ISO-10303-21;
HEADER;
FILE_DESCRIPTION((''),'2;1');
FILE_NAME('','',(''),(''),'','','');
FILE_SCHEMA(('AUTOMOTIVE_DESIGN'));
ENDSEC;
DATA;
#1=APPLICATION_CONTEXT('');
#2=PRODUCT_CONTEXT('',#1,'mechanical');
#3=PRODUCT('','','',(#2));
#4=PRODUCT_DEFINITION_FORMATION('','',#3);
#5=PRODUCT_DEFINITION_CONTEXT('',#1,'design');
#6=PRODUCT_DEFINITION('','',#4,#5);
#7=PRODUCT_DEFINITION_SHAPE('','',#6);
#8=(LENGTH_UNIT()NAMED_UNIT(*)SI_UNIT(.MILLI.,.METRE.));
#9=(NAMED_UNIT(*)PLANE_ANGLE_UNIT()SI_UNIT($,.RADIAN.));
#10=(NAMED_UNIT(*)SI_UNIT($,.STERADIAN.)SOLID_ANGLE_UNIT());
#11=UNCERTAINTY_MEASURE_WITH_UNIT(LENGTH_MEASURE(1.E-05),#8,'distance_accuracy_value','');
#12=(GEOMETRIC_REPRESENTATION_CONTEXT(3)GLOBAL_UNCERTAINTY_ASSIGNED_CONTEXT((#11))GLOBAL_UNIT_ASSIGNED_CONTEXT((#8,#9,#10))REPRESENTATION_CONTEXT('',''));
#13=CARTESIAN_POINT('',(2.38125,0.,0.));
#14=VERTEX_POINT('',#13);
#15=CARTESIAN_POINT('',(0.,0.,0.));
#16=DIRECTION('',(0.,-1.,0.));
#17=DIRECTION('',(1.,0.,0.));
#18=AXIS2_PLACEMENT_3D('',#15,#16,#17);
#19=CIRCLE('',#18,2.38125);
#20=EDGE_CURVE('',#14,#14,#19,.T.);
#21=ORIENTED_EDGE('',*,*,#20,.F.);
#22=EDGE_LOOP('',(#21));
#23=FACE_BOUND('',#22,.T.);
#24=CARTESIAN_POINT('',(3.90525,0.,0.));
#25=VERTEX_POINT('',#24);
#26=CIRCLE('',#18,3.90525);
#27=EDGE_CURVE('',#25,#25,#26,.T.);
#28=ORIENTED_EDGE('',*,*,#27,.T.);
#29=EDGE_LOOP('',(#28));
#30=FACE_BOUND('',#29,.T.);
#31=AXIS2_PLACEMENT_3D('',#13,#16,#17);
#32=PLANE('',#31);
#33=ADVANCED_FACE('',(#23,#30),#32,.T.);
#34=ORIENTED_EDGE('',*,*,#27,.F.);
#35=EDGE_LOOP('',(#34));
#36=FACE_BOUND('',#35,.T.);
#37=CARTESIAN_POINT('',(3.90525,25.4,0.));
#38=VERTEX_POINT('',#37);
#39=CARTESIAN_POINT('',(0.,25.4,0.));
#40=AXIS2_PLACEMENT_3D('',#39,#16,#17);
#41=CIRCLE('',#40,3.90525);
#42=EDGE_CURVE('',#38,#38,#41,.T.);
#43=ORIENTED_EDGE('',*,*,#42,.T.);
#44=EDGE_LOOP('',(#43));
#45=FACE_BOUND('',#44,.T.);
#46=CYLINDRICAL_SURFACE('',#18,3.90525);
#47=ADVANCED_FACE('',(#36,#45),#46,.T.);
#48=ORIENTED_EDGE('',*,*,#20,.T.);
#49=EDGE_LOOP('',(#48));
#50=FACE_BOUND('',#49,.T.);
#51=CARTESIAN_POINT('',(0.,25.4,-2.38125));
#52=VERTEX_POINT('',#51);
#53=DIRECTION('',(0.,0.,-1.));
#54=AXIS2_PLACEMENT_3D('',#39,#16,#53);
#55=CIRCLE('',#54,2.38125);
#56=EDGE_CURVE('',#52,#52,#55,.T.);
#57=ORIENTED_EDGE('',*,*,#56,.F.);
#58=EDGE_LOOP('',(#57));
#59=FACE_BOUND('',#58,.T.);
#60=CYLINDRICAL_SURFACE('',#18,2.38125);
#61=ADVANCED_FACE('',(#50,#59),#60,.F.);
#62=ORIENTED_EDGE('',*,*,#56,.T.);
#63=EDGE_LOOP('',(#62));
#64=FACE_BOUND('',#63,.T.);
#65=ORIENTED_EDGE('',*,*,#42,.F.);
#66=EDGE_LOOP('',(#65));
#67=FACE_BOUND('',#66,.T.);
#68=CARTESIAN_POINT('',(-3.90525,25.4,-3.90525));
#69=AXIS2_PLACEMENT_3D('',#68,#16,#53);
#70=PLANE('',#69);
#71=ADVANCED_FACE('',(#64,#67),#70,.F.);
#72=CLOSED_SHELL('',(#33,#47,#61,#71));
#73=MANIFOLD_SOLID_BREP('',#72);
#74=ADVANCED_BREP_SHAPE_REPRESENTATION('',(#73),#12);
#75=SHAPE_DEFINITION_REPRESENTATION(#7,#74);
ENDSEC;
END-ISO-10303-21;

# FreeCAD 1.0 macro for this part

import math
import FreeCAD as App
import Part
import Sketcher
Q = App.Units.Quantity


def add_polygon(sketch, points):
    """Adds a closed chain of lines whose ends are joined by coincident constraints."""
    first, n = sketch.GeometryCount, len(points)
    for a, b in zip(points, points[1:] + points[:1]):
        sketch.addGeometry(Part.LineSegment(App.Vector(*a, 0), App.Vector(*b, 0)), False)
    for i in range(n):
        sketch.addConstraint(Sketcher.Constraint("Coincident", first + i, 2, first + (i + 1) % n, 1))

doc = App.newDocument("Part")
body = doc.addObject("PartDesign::Body", "Body")

# Sketch on XY plane
sketch1 = body.newObject("Sketcher::SketchObject", "Sketch")
sketch1.AttachmentSupport = (doc.getObject("XY_Plane"), [""])
sketch1.MapMode = "FlatFace"
sketch1.addGeometry([
    Part.LineSegment(App.Vector(2.4, 25.4, 0), App.Vector(2.4, 0, 0)),  # 0
    Part.LineSegment(App.Vector(2.4, 0, 0), App.Vector(3.9, 0, 0)),  # 1
    Part.LineSegment(App.Vector(3.9, 0, 0), App.Vector(3.9, 25.4, 0)),  # 2
    Part.ArcOfCircle(Part.Circle(App.Vector(0, 25.4, 0), App.Vector(0, 0, 1), 3.9), math.radians(0), math.radians(90)),  # 3
    Part.LineSegment(App.Vector(0, 29.3, 0), App.Vector(0, 27.8, 0)),  # 4
    Part.ArcOfCircle(Part.Circle(App.Vector(0, 25.4, 0), App.Vector(0, 0, 1), 2.4), math.radians(0), math.radians(90)),  # 5
], False)
sketch1.addConstraint([
    Sketcher.Constraint("Coincident", 0, 2, 1, 1),
    Sketcher.Constraint("Coincident", 1, 2, 2, 1),
    Sketcher.Constraint("Tangent", 2, 2, 3, 1),
    Sketcher.Constraint("Coincident", 3, 2, 4, 1),
    Sketcher.Constraint("Coincident", 4, 2, 5, 2),
    Sketcher.Constraint("Tangent", 5, 1, 0, 1),
    Sketcher.Constraint("Vertical", 0),
    Sketcher.Constraint("Horizontal", 1),
    Sketcher.Constraint("Vertical", 2),
    Sketcher.Constraint("Vertical", 4),
    Sketcher.Constraint("Coincident", 5, 3, 3, 3),
    Sketcher.Constraint("PointOnObject", 3, 3, -2),
    Sketcher.Constraint("PointOnObject", 0, 2, -1),
    Sketcher.Constraint("PointOnObject", 3, 2, -2),
    Sketcher.Constraint("DistanceY", 0, 2, 0, 1, Q("1 in")),
    Sketcher.Constraint("Radius", 5, Q("0.09375 in")),
    Sketcher.Constraint("DistanceX", 1, 1, 1, 2, Q("0.06 in")),
])
revolution = body.newObject("PartDesign::Revolution", "Revolution")
revolution.Profile = sketch1
revolution.ReferenceAxis = (sketch1, ["V_Axis"])
revolution.Angle = 360

# Sketch on XY plane
sketch2 = body.newObject("Sketcher::SketchObject", "Sketch001")
sketch2.AttachmentSupport = (doc.getObject("XY_Plane"), [""])
sketch2.MapMode = "FlatFace"
add_polygon(sketch2, [(-3.9, 29.3), (-3.9, 25.4), (3.9, 25.4), (3.9, 29.3)])  # lines 0-3
sketch2.addConstraint([
    Sketcher.Constraint("Vertical", 0),
    Sketcher.Constraint("Horizontal", 1),
    Sketcher.Constraint("Vertical", 2),
    Sketcher.Constraint("Horizontal", 3),
    Sketcher.Constraint("DistanceY", -1, 1, 0, 2, Q("1 in")),
    Sketcher.Constraint("DistanceX", 1, 1, 1, 2, Q("0.3075 in")),
    Sketcher.Constraint("DistanceY", 0, 2, 0, 1, Q("3.90525 mm")),
    Sketcher.Constraint("DistanceX", 0, 2, -1, 1, Q("3.90525 mm")),
])
pocket1 = body.newObject("PartDesign::Pocket", "Pocket")
pocket1.Profile = sketch2
pocket1.Type = "ThroughAll"
pocket1.Midplane = True

doc.recompute()
